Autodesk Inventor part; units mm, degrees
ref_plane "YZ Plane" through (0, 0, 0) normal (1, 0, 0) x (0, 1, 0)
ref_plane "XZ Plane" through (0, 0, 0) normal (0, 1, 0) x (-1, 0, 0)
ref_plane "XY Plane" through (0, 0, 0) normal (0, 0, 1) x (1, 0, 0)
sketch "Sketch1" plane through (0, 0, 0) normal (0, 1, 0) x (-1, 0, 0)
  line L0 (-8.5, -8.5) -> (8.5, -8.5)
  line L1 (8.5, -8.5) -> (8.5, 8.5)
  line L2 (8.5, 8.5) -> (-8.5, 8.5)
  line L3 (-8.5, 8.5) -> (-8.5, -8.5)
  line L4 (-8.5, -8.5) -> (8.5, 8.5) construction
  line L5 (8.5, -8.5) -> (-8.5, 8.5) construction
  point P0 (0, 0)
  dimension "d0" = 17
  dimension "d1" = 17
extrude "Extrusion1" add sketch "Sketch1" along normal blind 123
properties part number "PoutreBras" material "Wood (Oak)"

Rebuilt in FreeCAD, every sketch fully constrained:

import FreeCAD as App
import Part
import Sketcher
from FreeCAD import Vector
Q = App.Units.Quantity


def add_polygon(sketch, points):
    """Adds a closed chain of lines whose ends are joined by coincident constraints."""
    first, n = sketch.GeometryCount, len(points)
    for a, b in zip(points, points[1:] + points[:1]):
        sketch.addGeometry(Part.LineSegment(App.Vector(*a, 0), App.Vector(*b, 0)), False)
    for i in range(n):
        sketch.addConstraint(Sketcher.Constraint("Coincident", first + i, 2, first + (i + 1) % n, 1))

doc = App.newDocument("Part")
body = doc.addObject("PartDesign::Body", "Body")

# Sketch on XZ plane
sketch1 = body.newObject("Sketcher::SketchObject", "Sketch")
sketch1.AttachmentSupport = (doc.getObject("XZ_Plane"), [""])
sketch1.MapMode = "FlatFace"
add_polygon(sketch1, [(8, 8), (8, -8), (-8, -8), (-8, 8)])  # lines 0-3
sketch1.addConstraint([
    Sketcher.Constraint("Vertical", 0),
    Sketcher.Constraint("Horizontal", 1),
    Sketcher.Constraint("Vertical", 2),
    Sketcher.Constraint("Horizontal", 3),
    Sketcher.Constraint("Symmetric", 0, 2, 2, 2, -1, 1),
    Sketcher.Constraint("Equal", 3, 0),
    Sketcher.Constraint("DistanceX", 1, 2, 1, 1, Q("17 mm")),
])
pad1 = body.newObject("PartDesign::Pad", "Pad")
pad1.Profile = sketch1
pad1.Length = 123
pad1.Reversed = True

doc.recompute()
